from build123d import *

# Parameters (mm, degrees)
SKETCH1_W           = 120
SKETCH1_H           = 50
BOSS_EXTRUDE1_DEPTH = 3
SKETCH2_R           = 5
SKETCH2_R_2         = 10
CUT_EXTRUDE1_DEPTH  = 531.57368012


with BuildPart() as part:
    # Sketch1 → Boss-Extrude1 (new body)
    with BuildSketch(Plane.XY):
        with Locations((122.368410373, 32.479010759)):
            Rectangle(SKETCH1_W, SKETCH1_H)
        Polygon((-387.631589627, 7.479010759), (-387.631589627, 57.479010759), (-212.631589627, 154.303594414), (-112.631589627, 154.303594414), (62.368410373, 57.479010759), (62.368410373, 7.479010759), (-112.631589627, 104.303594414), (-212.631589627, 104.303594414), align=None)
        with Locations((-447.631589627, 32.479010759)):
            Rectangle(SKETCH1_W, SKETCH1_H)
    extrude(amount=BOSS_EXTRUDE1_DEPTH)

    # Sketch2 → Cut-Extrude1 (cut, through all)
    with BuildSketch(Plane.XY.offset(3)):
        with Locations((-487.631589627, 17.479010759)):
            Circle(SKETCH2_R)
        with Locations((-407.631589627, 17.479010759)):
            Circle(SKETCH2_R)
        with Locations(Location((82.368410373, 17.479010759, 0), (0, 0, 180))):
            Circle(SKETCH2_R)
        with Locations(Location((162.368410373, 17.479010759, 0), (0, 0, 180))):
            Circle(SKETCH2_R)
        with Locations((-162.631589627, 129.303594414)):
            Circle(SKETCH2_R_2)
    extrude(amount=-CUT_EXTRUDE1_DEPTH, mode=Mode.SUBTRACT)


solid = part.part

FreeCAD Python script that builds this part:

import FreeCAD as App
import Part
import Sketcher
from FreeCAD import Vector


def add_polygon(sketch, points):
    """Adds a closed chain of lines whose ends are joined by coincident constraints."""
    first, n = sketch.GeometryCount, len(points)
    for a, b in zip(points, points[1:] + points[:1]):
        sketch.addGeometry(Part.LineSegment(App.Vector(*a, 0), App.Vector(*b, 0)), False)
    for i in range(n):
        sketch.addConstraint(Sketcher.Constraint("Coincident", first + i, 2, first + (i + 1) % n, 1))

doc = App.newDocument("Part")
params = doc.addObject("Spreadsheet::Sheet", "Params")
for row, (alias, value) in enumerate([
    ("sketch1_width", "120 mm"),
    ("sketch1_width2", "100 mm"),
    ("sketch1_height", "50 mm"),
    ("sketch1_length", "200 mm"),
    ("pad1_length", "3 mm"),
    ("sketch2_diameter", "10 mm"),
    ("sketch2_diameter2", "20 mm"),
], start=1):
    params.set(f"A{row}", alias)
    params.set(f"B{row}", "=" + value)
    params.setAlias(f"B{row}", alias)

body = doc.addObject("PartDesign::Body", "Body")

sketch1 = body.newObject("Sketcher::SketchObject", "Sketch")
sketch1.AttachmentSupport = (doc.getObject("XY_Plane"), [""])
sketch1.MapMode = "FlatFace"
add_polygon(sketch1, [(62, 7), (182, 7), (182, 57), (62, 57), (-113, 154), (-213, 154), (-388, 57), (-508, 57), (-508, 7), (-388, 7), (-213, 104), (-113, 104)])
sketch1.addConstraint(Sketcher.Constraint("Horizontal", 0))
sketch1.addConstraint(Sketcher.Constraint("Vertical", 1))
sketch1.addConstraint(Sketcher.Constraint("Horizontal", 2))
sketch1.addConstraint(Sketcher.Constraint("Horizontal", 4))
sketch1.addConstraint(Sketcher.Constraint("Horizontal", 6))
sketch1.addConstraint(Sketcher.Constraint("Vertical", 7))
sketch1.addConstraint(Sketcher.Constraint("Horizontal", 8))
sketch1.addConstraint(Sketcher.Constraint("Horizontal", 10))
sketch1.addConstraint(Sketcher.Constraint("Parallel", 5, 9))
sketch1.addConstraint(Sketcher.Constraint("Parallel", 3, 11))
sketch1.addConstraint(Sketcher.Constraint("Horizontal", 2, 2, 5, 2))
sketch1.addConstraint(Sketcher.Constraint("Horizontal", 0, 2, 7, 2))
sketch1.addConstraint(Sketcher.Constraint("Vertical", 5, 2, 8, 2))
sketch1.addConstraint(Sketcher.Constraint("Vertical", 4, 2, 9, 2))
sketch1.addConstraint(Sketcher.Constraint("Vertical", 3, 2, 10, 2))
sketch1.addConstraint(Sketcher.Constraint("Equal", 2, 6))
sketch1.addConstraint(Sketcher.Constraint("Equal", 3, 5))
sketch1.addConstraint(Sketcher.Constraint("DistanceX", 0, 1, 0, 2, 120.0))
sketch1.addConstraint(Sketcher.Constraint("DistanceX", 4, 2, 4, 1, 100.0))
sketch1.addConstraint(Sketcher.Constraint("DistanceY", 1, 1, 1, 2, 50.0))
sketch1.addConstraint(Sketcher.Constraint("Distance", 3, 200.0))
sketch1.addConstraint(Sketcher.Constraint("DistanceX", 3, 2, 2, 2, 175.0))
sketch1.addConstraint(Sketcher.Constraint("DistanceX", -1, 1, 0, 2, 182.36841))
sketch1.addConstraint(Sketcher.Constraint("DistanceY", -1, 1, 0, 2, 7.479011))
sketch1.setExpression("Constraints[29]", "Params.sketch1_width")
sketch1.setExpression("Constraints[30]", "Params.sketch1_width2")
sketch1.setExpression("Constraints[31]", "Params.sketch1_height")
sketch1.setExpression("Constraints[32]", "Params.sketch1_length")
pad1 = body.newObject("PartDesign::Pad", "Pad")
pad1.Profile = sketch1
pad1.setExpression("Length", "Params.pad1_length")

sketch2 = body.newObject("Sketcher::SketchObject", "Sketch001")
sketch2.AttachmentSupport = (doc.getObject("XY_Plane"), [""])
sketch2.MapMode = "FlatFace"
sketch2.AttachmentOffset = App.Placement(Vector(0, 0, 3), App.Rotation())
sketch2.addGeometry(Part.Circle(Vector(-488, 17, 0), Vector(0, 0, 1), 5), False)
sketch2.addGeometry(Part.Circle(Vector(-408, 17, 0), Vector(0, 0, 1), 5), False)
sketch2.addGeometry(Part.Circle(Vector(82, 17, 0), Vector(0, 0, 1), 5), False)
sketch2.addGeometry(Part.Circle(Vector(162, 17, 0), Vector(0, 0, 1), 5), False)
sketch2.addGeometry(Part.Circle(Vector(-163, 129, 0), Vector(0, 0, 1), 10), False)
sketch2.addConstraint(Sketcher.Constraint("Equal", 0, 1))
sketch2.addConstraint(Sketcher.Constraint("Equal", 1, 2))
sketch2.addConstraint(Sketcher.Constraint("Equal", 2, 3))
sketch2.addConstraint(Sketcher.Constraint("Horizontal", 0, 3, 1, 3))
sketch2.addConstraint(Sketcher.Constraint("Horizontal", 1, 3, 2, 3))
sketch2.addConstraint(Sketcher.Constraint("Horizontal", 2, 3, 3, 3))
sketch2.addConstraint(Sketcher.Constraint("Diameter", 0, 10.0))
sketch2.addConstraint(Sketcher.Constraint("Diameter", 4, 20.0))
sketch2.addConstraint(Sketcher.Constraint("DistanceX", 0, 3, 1, 3, 80.0))
sketch2.addConstraint(Sketcher.Constraint("DistanceX", 1, 3, 2, 3, 490.0))
sketch2.addConstraint(Sketcher.Constraint("DistanceX", 2, 3, 3, 3, 80.0))
sketch2.addConstraint(Sketcher.Constraint("DistanceX", 1, 3, 4, 3, 245.0))
sketch2.addConstraint(Sketcher.Constraint("DistanceX", 0, 3, -1, 1, 487.63159))
sketch2.addConstraint(Sketcher.Constraint("DistanceY", -1, 1, 0, 3, 17.479011))
sketch2.addConstraint(Sketcher.Constraint("DistanceY", -1, 1, 4, 3, 129.303594))
sketch2.setExpression("Constraints[6]", "Params.sketch2_diameter")
sketch2.setExpression("Constraints[7]", "Params.sketch2_diameter2")
pocket1 = body.newObject("PartDesign::Pocket", "Pocket")
pocket1.Profile = sketch2
pocket1.Type = "ThroughAll"

doc.recompute()
